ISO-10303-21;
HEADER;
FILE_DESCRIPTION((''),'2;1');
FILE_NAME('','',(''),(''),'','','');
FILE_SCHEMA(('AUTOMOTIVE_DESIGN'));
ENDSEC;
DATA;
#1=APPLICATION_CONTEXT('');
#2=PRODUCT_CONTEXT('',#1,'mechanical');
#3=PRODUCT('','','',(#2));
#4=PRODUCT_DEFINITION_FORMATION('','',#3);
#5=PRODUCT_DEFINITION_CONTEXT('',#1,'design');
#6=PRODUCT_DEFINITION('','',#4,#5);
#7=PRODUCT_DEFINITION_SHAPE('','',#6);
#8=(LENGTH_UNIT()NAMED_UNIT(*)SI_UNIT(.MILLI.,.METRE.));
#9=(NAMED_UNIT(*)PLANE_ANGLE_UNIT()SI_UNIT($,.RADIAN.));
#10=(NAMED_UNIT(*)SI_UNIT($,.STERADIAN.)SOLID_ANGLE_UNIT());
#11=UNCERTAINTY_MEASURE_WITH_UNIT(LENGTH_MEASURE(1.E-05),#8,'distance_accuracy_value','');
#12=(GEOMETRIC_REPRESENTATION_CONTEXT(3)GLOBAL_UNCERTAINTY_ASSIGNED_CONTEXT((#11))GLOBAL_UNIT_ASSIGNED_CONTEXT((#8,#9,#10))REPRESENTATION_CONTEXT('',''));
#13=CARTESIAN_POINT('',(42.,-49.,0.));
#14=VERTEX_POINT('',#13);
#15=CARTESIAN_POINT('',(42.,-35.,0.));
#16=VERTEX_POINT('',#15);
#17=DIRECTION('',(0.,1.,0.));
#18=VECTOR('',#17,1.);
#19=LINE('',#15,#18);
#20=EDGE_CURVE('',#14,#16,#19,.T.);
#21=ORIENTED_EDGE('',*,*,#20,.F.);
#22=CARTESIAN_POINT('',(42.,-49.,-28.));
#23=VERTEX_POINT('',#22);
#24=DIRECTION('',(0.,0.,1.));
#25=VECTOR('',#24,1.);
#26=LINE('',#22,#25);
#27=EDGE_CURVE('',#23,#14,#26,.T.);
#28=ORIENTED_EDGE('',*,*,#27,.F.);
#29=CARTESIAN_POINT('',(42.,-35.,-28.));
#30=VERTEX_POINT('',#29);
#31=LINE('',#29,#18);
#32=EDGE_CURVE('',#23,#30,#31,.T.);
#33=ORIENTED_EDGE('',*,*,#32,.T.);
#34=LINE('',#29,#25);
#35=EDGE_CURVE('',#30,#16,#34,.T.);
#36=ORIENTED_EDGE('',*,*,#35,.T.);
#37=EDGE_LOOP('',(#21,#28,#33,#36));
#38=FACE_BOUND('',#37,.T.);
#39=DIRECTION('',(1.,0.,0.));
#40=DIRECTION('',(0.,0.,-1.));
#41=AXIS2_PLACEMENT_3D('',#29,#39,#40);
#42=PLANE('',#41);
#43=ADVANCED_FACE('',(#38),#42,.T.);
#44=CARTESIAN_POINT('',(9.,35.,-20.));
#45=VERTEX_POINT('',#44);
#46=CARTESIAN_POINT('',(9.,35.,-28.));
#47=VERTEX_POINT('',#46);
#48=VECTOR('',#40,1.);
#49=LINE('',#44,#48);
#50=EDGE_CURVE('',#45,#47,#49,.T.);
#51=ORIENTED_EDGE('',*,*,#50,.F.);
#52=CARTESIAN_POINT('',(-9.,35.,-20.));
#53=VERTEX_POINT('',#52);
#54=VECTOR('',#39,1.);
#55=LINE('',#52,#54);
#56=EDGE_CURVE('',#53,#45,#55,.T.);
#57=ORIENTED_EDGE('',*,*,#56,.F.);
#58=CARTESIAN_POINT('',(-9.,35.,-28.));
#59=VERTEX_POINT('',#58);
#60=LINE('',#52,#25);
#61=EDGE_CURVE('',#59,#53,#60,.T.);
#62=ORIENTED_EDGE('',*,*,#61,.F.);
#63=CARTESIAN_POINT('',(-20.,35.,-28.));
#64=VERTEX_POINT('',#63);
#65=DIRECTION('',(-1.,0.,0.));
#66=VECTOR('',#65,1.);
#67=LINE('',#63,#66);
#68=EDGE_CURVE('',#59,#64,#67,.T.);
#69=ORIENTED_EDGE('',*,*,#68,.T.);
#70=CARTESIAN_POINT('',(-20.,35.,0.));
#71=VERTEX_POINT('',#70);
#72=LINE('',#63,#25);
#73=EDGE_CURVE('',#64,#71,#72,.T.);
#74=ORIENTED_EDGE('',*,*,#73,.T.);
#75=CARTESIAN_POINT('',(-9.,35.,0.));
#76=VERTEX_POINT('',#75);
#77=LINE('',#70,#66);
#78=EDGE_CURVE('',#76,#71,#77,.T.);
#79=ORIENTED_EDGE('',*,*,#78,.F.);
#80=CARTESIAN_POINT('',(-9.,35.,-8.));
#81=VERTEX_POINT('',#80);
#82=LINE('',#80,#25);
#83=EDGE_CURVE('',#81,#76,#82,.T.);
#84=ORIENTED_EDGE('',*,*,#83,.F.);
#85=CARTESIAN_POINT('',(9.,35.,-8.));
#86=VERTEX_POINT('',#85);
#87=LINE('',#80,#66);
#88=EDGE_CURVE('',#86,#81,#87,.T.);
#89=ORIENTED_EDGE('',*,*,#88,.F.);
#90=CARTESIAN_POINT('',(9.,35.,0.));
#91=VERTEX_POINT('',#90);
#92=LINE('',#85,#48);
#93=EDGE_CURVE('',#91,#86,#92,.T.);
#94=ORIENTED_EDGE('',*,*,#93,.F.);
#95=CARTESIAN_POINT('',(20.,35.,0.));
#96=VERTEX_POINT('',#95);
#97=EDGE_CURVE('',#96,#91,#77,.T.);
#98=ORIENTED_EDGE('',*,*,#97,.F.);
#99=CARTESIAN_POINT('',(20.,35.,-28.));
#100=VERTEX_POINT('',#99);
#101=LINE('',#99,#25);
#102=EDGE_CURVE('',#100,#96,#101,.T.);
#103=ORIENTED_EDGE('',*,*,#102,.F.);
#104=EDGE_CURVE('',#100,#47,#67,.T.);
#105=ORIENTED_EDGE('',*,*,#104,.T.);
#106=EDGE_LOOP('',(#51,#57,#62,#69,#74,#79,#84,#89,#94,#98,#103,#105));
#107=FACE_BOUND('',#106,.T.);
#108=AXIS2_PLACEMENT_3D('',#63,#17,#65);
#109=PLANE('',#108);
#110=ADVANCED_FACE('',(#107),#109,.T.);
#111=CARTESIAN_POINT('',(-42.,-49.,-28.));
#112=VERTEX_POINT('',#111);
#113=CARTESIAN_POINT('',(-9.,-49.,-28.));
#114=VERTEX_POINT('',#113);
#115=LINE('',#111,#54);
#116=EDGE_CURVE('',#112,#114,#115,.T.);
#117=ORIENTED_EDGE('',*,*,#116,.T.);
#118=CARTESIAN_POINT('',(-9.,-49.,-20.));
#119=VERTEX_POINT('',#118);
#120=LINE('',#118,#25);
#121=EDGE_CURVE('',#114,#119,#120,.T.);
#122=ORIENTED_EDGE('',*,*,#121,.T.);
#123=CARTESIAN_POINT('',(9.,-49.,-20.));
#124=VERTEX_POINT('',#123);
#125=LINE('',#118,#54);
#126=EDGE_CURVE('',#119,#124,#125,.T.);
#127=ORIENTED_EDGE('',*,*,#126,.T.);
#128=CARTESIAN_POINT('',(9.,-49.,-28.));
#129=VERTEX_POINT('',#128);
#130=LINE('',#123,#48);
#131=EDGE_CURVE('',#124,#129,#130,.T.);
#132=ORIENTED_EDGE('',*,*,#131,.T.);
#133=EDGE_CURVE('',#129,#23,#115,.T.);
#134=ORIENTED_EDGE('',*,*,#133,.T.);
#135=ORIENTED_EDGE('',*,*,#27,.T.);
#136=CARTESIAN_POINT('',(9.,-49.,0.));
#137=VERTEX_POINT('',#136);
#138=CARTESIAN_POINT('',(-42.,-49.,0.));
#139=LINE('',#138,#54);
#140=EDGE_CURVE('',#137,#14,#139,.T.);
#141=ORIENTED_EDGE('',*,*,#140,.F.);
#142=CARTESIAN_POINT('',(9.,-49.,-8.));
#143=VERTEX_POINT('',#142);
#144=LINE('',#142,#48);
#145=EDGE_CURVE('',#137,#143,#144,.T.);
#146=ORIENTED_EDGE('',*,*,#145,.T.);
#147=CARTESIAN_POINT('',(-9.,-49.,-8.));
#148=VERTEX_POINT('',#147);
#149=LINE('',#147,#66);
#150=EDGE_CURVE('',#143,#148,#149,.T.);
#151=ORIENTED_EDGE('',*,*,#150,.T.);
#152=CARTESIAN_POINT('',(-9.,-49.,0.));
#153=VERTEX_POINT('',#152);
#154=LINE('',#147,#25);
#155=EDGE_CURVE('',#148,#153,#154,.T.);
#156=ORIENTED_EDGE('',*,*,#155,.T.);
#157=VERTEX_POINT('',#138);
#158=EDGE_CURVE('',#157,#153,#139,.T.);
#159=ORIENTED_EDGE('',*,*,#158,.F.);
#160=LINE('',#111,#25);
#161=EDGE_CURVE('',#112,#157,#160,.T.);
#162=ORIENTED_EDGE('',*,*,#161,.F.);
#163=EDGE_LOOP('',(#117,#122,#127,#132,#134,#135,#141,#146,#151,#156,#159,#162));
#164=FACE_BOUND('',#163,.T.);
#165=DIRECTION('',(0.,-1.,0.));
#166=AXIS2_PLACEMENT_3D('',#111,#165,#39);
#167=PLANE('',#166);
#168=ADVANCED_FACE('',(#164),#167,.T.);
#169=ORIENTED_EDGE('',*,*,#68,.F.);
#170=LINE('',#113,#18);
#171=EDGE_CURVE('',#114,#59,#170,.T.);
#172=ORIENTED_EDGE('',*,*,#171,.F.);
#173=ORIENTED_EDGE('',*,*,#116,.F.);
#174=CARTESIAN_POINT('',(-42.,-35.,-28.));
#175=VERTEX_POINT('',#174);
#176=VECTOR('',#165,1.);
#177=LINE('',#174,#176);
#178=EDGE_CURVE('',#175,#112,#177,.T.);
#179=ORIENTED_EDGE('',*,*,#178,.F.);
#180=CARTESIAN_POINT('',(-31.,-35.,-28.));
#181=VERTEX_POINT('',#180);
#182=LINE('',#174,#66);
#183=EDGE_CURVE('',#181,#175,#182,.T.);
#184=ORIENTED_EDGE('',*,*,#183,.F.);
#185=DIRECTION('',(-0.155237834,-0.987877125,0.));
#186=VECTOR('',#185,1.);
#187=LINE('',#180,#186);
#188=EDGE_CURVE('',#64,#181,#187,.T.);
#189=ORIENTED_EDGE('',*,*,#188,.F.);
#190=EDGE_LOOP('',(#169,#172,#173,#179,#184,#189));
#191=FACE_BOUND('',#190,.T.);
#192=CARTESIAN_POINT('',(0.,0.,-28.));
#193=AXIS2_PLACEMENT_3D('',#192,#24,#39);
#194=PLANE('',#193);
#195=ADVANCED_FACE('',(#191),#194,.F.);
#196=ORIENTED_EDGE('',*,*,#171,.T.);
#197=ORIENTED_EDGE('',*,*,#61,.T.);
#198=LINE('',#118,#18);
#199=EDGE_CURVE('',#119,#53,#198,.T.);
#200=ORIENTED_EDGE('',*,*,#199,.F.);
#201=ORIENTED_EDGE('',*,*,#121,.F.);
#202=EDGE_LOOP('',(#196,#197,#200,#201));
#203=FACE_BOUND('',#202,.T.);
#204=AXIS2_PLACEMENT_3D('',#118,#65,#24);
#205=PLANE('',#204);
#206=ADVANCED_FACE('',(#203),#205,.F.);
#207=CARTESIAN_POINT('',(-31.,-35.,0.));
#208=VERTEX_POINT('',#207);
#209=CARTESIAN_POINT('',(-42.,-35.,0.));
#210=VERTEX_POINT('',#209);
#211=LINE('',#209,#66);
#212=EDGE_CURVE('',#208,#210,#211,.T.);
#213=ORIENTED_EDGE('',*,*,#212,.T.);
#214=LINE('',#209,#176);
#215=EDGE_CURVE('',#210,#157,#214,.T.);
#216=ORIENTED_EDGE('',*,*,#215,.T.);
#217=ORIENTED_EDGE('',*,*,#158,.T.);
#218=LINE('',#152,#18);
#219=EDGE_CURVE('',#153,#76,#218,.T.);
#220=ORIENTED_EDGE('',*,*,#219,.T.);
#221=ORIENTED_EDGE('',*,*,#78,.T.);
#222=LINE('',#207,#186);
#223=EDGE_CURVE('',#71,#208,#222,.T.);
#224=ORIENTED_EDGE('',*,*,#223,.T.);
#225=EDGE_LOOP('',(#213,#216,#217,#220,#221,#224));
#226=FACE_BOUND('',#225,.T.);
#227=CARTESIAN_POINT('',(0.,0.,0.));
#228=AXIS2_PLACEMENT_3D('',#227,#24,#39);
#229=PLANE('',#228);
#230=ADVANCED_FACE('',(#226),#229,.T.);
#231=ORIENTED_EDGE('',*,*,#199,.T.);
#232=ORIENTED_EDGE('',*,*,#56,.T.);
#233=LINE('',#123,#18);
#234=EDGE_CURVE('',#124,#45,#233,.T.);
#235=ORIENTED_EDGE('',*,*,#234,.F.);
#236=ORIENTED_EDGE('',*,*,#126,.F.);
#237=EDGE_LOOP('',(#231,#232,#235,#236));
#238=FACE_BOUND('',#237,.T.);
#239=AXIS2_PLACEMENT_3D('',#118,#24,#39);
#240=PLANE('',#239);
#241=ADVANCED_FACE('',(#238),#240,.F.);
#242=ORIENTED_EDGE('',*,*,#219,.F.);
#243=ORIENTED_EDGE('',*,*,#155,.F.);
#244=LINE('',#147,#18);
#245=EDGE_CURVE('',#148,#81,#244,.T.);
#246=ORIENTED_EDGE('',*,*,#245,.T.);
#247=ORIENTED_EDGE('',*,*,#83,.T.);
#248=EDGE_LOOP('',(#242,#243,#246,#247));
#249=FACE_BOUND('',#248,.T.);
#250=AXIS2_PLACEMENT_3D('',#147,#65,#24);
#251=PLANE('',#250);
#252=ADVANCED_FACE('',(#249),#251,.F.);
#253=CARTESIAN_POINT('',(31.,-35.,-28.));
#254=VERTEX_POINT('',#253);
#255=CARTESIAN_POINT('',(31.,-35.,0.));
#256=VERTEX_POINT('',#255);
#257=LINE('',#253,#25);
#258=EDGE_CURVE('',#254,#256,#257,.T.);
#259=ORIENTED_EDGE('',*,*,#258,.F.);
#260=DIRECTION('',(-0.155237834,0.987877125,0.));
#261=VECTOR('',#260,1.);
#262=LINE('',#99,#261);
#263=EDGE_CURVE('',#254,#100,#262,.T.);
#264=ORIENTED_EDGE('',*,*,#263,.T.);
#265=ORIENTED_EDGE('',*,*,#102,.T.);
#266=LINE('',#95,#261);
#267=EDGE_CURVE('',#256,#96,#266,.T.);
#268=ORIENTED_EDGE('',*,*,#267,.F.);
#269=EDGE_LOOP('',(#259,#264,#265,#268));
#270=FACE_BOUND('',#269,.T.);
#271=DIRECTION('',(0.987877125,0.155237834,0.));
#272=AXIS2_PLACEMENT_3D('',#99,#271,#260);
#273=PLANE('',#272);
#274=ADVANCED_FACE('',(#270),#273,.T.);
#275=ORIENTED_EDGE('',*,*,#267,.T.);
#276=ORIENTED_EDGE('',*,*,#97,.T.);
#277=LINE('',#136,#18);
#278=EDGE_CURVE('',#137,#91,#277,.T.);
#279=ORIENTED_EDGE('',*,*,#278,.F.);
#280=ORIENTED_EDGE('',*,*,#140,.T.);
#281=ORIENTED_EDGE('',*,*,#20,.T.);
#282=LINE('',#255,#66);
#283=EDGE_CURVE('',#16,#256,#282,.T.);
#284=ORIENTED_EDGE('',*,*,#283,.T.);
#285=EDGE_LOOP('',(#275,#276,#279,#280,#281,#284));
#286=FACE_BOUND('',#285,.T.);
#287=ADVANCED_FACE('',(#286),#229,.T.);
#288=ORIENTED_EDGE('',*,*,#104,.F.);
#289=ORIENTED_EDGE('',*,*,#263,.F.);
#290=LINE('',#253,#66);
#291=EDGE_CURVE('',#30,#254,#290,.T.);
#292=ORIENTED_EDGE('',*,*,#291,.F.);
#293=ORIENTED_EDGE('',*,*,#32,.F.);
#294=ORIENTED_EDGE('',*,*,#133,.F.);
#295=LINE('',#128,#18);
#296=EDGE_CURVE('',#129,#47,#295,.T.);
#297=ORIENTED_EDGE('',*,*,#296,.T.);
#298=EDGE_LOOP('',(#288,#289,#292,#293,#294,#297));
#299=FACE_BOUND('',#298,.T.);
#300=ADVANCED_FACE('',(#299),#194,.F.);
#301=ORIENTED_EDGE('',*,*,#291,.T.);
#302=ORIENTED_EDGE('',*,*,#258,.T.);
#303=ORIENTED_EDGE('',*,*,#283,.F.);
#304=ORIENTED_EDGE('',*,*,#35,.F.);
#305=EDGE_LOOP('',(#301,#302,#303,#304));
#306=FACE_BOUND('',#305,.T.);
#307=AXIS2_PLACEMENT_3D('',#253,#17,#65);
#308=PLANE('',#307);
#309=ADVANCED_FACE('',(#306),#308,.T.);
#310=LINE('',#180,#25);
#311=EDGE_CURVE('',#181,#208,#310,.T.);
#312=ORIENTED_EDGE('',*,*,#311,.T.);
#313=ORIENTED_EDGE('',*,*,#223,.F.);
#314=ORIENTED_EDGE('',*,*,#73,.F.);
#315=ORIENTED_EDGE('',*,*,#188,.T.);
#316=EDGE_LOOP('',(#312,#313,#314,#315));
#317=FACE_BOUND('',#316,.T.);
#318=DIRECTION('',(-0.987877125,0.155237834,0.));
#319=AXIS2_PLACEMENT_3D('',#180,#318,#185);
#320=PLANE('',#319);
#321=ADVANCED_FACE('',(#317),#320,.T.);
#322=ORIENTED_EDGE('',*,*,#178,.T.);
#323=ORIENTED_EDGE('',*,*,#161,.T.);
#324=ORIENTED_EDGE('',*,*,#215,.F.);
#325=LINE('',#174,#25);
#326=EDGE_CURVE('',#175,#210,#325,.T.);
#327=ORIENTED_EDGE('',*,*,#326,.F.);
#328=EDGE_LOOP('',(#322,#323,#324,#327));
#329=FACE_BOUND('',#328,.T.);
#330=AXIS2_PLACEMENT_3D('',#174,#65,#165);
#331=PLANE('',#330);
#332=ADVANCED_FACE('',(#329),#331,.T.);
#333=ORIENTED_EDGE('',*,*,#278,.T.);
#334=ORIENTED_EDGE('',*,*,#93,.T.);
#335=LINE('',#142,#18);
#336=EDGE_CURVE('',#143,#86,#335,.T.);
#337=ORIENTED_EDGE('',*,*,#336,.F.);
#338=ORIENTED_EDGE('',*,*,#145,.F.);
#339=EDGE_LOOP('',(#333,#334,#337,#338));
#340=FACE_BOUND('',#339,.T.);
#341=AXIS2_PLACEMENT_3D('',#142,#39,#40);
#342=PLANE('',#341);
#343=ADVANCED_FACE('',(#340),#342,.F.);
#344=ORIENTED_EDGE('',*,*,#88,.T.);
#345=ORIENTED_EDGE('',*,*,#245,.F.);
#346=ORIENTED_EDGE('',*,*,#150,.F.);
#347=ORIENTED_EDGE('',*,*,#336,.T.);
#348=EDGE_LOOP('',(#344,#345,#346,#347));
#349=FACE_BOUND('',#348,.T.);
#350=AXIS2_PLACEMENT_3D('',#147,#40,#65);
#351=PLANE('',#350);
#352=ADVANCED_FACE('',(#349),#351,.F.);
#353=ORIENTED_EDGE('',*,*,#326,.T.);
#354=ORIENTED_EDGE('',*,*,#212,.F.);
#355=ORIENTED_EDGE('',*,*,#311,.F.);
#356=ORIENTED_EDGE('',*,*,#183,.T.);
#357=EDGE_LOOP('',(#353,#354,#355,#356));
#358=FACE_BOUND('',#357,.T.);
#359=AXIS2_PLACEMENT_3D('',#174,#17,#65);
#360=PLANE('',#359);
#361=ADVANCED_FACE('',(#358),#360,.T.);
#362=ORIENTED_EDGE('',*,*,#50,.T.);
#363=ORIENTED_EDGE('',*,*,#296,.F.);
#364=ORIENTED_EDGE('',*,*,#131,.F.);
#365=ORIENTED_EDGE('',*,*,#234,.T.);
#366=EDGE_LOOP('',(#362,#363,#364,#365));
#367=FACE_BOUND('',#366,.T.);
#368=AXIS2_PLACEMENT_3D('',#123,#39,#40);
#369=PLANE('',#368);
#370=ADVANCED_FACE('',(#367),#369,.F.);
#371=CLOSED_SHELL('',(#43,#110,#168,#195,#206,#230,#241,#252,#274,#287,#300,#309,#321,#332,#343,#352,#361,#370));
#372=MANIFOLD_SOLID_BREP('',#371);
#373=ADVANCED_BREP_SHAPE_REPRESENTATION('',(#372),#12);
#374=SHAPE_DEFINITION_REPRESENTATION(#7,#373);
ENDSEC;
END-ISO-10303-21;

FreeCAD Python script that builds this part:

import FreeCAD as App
import Part
import Sketcher

V = App.Vector

doc = App.newDocument("Part")
body = doc.addObject("PartDesign::Body", "Body")

# Sketch on XY plane
sketch1 = body.newObject("Sketcher::SketchObject", "Sketch")
sketch1.AttachmentSupport = (doc.getObject("XY_Plane"), [""])
sketch1.MapMode = "FlatFace"
sketch1.addGeometry([
    Part.LineSegment(V(20, 35, 0), V(-20, 35, 0)),  # 0
    Part.LineSegment(V(-20, 35, 0), V(-31, -35, 0)),  # 1
    Part.LineSegment(V(-31, -35, 0), V(-42, -35, 0)),  # 2
    Part.LineSegment(V(-42, -35, 0), V(-42, -49, 0)),  # 3
    Part.LineSegment(V(-42, -49, 0), V(42, -49, 0)),  # 4
    Part.LineSegment(V(42, -49, 0), V(42, -35, 0)),  # 5
    Part.LineSegment(V(42, -35, 0), V(31, -35, 0)),  # 6
    Part.LineSegment(V(31, -35, 0), V(20, 35, 0)),  # 7
], False)
sketch1.addConstraint([
    Sketcher.Constraint("Coincident", 0, 2, 1, 1),
    Sketcher.Constraint("Coincident", 1, 2, 2, 1),
    Sketcher.Constraint("Coincident", 2, 2, 3, 1),
    Sketcher.Constraint("Coincident", 3, 2, 4, 1),
    Sketcher.Constraint("Coincident", 4, 2, 5, 1),
    Sketcher.Constraint("Coincident", 5, 2, 6, 1),
    Sketcher.Constraint("Coincident", 6, 2, 7, 1),
    Sketcher.Constraint("Coincident", 7, 2, 0, 1),
    Sketcher.Constraint("Horizontal", 0),
    Sketcher.Constraint("Horizontal", 2),
    Sketcher.Constraint("Vertical", 3),
    Sketcher.Constraint("Horizontal", 4),
    Sketcher.Constraint("Vertical", 5),
    Sketcher.Constraint("Horizontal", 6),
    Sketcher.Constraint("Symmetric", 2, 2, 5, 2, -2),
    Sketcher.Constraint("Equal", 2, 6),
    Sketcher.Constraint("Equal", 1, 7),
    Sketcher.Constraint("DistanceX", 0, 2, 0, 1, 40.0),
    Sketcher.Constraint("DistanceX", 2, 2, 2, 1, 11.0),
    Sketcher.Constraint("DistanceX", 4, 1, 4, 2, 84.0),
    Sketcher.Constraint("DistanceY", 3, 2, 3, 1, 14.0),
    Sketcher.Constraint("DistanceY", -1, 1, 0, 2, 35.0),
    Sketcher.Constraint("DistanceY", 1, 2, -1, 1, 35.0),
])
pad1 = body.newObject("PartDesign::Pad", "Pad")
pad1.Profile = sketch1
pad1.Length = 28
pad1.Reversed = True

# Sketch on XZ plane
sketch2 = body.newObject("Sketcher::SketchObject", "Sketch001")
sketch2.AttachmentSupport = (doc.getObject("XZ_Plane"), [""])
sketch2.MapMode = "FlatFace"
sketch2.AttachmentOffset = App.Placement(V(0, 0, -35), App.Rotation())
sketch2.addGeometry([
    Part.LineSegment(V(-9, -8, 0), V(-9, 0, 0)),  # 0
    Part.LineSegment(V(-9, 0, 0), V(9, 0, 0)),  # 1
    Part.LineSegment(V(9, 0, 0), V(9, -8, 0)),  # 2
    Part.LineSegment(V(9, -8, 0), V(-9, -8, 0)),  # 3
    Part.LineSegment(V(-9, -28, 0), V(-9, -20, 0)),  # 4
    Part.LineSegment(V(-9, -20, 0), V(9, -20, 0)),  # 5
    Part.LineSegment(V(9, -20, 0), V(9, -28, 0)),  # 6
    Part.LineSegment(V(9, -28, 0), V(-9, -28, 0)),  # 7
], False)
sketch2.addConstraint([
    Sketcher.Constraint("Coincident", 0, 2, 1, 1),
    Sketcher.Constraint("Coincident", 1, 2, 2, 1),
    Sketcher.Constraint("Coincident", 2, 2, 3, 1),
    Sketcher.Constraint("Coincident", 3, 2, 0, 1),
    Sketcher.Constraint("Coincident", 4, 2, 5, 1),
    Sketcher.Constraint("Coincident", 5, 2, 6, 1),
    Sketcher.Constraint("Coincident", 6, 2, 7, 1),
    Sketcher.Constraint("Coincident", 7, 2, 4, 1),
    Sketcher.Constraint("Vertical", 0),
    Sketcher.Constraint("Horizontal", 1),
    Sketcher.Constraint("Vertical", 2),
    Sketcher.Constraint("Horizontal", 3),
    Sketcher.Constraint("Vertical", 4),
    Sketcher.Constraint("Horizontal", 5),
    Sketcher.Constraint("Vertical", 6),
    Sketcher.Constraint("Horizontal", 7),
    Sketcher.Constraint("Symmetric", 0, 2, 1, 2, -1, 1),
    Sketcher.Constraint("Vertical", 3, 2, 4, 2),
    Sketcher.Constraint("Vertical", 2, 2, 5, 2),
    Sketcher.Constraint("Equal", 2, 4),
    Sketcher.Constraint("DistanceX", 1, 1, 1, 2, 18.0),
    Sketcher.Constraint("DistanceY", 0, 1, 0, 2, 8.0),
    Sketcher.Constraint("DistanceY", 4, 2, -1, 1, 20.0),
])
pocket1 = body.newObject("PartDesign::Pocket", "Pocket")
pocket1.Profile = sketch2
pocket1.Type = "ThroughAll"
pocket1.Reversed = True

doc.recompute()
